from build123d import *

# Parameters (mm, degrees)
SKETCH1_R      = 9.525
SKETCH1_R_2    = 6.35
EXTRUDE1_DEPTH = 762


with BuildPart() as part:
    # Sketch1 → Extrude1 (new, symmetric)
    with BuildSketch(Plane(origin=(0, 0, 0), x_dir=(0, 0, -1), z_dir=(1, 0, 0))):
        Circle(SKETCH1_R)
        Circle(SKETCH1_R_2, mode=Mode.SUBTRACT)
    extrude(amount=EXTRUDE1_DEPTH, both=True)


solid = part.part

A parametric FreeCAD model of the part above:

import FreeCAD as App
import Part
import Sketcher
Q = App.Units.Quantity

doc = App.newDocument("Part")
params = doc.addObject("Spreadsheet::Sheet", "Params")
for row, (alias, value) in enumerate([
    ("sketch1_diameter", "0.5 in"),
    ("sketch1_diameter2", "0.75 in"),
    ("pad1_length", "60 in"),
], start=1):
    params.set(f"A{row}", alias)
    params.set(f"B{row}", "=" + value)
    params.setAlias(f"B{row}", alias)

body = doc.addObject("PartDesign::Body", "Body")

sketch1 = body.newObject("Sketcher::SketchObject", "Sketch")
sketch1.AttachmentSupport = (doc.getObject("YZ_Plane"), [""])
sketch1.MapMode = "FlatFace"
sketch1.addGeometry([
    Part.Circle(App.Vector(0, 0, 0), App.Vector(0, 0, 1), 9.525),
    Part.Circle(App.Vector(0, 0, 0), App.Vector(0, 0, 1), 6.35),
], False)
sketch1.addConstraint([
    Sketcher.Constraint("Coincident", 0, 3, -1, 1),
    Sketcher.Constraint("Coincident", 1, 3, -1, 1),
    Sketcher.Constraint("Diameter", 1, Q("0.5 in")),
    Sketcher.Constraint("Diameter", 0, Q("0.75 in")),
])
sketch1.setExpression("Constraints[2]", "Params.sketch1_diameter")
sketch1.setExpression("Constraints[3]", "Params.sketch1_diameter2")
pad1 = body.newObject("PartDesign::Pad", "Pad")
pad1.Profile = sketch1
pad1.setExpression("Length", "Params.pad1_length")
pad1.Midplane = True

doc.recompute()
